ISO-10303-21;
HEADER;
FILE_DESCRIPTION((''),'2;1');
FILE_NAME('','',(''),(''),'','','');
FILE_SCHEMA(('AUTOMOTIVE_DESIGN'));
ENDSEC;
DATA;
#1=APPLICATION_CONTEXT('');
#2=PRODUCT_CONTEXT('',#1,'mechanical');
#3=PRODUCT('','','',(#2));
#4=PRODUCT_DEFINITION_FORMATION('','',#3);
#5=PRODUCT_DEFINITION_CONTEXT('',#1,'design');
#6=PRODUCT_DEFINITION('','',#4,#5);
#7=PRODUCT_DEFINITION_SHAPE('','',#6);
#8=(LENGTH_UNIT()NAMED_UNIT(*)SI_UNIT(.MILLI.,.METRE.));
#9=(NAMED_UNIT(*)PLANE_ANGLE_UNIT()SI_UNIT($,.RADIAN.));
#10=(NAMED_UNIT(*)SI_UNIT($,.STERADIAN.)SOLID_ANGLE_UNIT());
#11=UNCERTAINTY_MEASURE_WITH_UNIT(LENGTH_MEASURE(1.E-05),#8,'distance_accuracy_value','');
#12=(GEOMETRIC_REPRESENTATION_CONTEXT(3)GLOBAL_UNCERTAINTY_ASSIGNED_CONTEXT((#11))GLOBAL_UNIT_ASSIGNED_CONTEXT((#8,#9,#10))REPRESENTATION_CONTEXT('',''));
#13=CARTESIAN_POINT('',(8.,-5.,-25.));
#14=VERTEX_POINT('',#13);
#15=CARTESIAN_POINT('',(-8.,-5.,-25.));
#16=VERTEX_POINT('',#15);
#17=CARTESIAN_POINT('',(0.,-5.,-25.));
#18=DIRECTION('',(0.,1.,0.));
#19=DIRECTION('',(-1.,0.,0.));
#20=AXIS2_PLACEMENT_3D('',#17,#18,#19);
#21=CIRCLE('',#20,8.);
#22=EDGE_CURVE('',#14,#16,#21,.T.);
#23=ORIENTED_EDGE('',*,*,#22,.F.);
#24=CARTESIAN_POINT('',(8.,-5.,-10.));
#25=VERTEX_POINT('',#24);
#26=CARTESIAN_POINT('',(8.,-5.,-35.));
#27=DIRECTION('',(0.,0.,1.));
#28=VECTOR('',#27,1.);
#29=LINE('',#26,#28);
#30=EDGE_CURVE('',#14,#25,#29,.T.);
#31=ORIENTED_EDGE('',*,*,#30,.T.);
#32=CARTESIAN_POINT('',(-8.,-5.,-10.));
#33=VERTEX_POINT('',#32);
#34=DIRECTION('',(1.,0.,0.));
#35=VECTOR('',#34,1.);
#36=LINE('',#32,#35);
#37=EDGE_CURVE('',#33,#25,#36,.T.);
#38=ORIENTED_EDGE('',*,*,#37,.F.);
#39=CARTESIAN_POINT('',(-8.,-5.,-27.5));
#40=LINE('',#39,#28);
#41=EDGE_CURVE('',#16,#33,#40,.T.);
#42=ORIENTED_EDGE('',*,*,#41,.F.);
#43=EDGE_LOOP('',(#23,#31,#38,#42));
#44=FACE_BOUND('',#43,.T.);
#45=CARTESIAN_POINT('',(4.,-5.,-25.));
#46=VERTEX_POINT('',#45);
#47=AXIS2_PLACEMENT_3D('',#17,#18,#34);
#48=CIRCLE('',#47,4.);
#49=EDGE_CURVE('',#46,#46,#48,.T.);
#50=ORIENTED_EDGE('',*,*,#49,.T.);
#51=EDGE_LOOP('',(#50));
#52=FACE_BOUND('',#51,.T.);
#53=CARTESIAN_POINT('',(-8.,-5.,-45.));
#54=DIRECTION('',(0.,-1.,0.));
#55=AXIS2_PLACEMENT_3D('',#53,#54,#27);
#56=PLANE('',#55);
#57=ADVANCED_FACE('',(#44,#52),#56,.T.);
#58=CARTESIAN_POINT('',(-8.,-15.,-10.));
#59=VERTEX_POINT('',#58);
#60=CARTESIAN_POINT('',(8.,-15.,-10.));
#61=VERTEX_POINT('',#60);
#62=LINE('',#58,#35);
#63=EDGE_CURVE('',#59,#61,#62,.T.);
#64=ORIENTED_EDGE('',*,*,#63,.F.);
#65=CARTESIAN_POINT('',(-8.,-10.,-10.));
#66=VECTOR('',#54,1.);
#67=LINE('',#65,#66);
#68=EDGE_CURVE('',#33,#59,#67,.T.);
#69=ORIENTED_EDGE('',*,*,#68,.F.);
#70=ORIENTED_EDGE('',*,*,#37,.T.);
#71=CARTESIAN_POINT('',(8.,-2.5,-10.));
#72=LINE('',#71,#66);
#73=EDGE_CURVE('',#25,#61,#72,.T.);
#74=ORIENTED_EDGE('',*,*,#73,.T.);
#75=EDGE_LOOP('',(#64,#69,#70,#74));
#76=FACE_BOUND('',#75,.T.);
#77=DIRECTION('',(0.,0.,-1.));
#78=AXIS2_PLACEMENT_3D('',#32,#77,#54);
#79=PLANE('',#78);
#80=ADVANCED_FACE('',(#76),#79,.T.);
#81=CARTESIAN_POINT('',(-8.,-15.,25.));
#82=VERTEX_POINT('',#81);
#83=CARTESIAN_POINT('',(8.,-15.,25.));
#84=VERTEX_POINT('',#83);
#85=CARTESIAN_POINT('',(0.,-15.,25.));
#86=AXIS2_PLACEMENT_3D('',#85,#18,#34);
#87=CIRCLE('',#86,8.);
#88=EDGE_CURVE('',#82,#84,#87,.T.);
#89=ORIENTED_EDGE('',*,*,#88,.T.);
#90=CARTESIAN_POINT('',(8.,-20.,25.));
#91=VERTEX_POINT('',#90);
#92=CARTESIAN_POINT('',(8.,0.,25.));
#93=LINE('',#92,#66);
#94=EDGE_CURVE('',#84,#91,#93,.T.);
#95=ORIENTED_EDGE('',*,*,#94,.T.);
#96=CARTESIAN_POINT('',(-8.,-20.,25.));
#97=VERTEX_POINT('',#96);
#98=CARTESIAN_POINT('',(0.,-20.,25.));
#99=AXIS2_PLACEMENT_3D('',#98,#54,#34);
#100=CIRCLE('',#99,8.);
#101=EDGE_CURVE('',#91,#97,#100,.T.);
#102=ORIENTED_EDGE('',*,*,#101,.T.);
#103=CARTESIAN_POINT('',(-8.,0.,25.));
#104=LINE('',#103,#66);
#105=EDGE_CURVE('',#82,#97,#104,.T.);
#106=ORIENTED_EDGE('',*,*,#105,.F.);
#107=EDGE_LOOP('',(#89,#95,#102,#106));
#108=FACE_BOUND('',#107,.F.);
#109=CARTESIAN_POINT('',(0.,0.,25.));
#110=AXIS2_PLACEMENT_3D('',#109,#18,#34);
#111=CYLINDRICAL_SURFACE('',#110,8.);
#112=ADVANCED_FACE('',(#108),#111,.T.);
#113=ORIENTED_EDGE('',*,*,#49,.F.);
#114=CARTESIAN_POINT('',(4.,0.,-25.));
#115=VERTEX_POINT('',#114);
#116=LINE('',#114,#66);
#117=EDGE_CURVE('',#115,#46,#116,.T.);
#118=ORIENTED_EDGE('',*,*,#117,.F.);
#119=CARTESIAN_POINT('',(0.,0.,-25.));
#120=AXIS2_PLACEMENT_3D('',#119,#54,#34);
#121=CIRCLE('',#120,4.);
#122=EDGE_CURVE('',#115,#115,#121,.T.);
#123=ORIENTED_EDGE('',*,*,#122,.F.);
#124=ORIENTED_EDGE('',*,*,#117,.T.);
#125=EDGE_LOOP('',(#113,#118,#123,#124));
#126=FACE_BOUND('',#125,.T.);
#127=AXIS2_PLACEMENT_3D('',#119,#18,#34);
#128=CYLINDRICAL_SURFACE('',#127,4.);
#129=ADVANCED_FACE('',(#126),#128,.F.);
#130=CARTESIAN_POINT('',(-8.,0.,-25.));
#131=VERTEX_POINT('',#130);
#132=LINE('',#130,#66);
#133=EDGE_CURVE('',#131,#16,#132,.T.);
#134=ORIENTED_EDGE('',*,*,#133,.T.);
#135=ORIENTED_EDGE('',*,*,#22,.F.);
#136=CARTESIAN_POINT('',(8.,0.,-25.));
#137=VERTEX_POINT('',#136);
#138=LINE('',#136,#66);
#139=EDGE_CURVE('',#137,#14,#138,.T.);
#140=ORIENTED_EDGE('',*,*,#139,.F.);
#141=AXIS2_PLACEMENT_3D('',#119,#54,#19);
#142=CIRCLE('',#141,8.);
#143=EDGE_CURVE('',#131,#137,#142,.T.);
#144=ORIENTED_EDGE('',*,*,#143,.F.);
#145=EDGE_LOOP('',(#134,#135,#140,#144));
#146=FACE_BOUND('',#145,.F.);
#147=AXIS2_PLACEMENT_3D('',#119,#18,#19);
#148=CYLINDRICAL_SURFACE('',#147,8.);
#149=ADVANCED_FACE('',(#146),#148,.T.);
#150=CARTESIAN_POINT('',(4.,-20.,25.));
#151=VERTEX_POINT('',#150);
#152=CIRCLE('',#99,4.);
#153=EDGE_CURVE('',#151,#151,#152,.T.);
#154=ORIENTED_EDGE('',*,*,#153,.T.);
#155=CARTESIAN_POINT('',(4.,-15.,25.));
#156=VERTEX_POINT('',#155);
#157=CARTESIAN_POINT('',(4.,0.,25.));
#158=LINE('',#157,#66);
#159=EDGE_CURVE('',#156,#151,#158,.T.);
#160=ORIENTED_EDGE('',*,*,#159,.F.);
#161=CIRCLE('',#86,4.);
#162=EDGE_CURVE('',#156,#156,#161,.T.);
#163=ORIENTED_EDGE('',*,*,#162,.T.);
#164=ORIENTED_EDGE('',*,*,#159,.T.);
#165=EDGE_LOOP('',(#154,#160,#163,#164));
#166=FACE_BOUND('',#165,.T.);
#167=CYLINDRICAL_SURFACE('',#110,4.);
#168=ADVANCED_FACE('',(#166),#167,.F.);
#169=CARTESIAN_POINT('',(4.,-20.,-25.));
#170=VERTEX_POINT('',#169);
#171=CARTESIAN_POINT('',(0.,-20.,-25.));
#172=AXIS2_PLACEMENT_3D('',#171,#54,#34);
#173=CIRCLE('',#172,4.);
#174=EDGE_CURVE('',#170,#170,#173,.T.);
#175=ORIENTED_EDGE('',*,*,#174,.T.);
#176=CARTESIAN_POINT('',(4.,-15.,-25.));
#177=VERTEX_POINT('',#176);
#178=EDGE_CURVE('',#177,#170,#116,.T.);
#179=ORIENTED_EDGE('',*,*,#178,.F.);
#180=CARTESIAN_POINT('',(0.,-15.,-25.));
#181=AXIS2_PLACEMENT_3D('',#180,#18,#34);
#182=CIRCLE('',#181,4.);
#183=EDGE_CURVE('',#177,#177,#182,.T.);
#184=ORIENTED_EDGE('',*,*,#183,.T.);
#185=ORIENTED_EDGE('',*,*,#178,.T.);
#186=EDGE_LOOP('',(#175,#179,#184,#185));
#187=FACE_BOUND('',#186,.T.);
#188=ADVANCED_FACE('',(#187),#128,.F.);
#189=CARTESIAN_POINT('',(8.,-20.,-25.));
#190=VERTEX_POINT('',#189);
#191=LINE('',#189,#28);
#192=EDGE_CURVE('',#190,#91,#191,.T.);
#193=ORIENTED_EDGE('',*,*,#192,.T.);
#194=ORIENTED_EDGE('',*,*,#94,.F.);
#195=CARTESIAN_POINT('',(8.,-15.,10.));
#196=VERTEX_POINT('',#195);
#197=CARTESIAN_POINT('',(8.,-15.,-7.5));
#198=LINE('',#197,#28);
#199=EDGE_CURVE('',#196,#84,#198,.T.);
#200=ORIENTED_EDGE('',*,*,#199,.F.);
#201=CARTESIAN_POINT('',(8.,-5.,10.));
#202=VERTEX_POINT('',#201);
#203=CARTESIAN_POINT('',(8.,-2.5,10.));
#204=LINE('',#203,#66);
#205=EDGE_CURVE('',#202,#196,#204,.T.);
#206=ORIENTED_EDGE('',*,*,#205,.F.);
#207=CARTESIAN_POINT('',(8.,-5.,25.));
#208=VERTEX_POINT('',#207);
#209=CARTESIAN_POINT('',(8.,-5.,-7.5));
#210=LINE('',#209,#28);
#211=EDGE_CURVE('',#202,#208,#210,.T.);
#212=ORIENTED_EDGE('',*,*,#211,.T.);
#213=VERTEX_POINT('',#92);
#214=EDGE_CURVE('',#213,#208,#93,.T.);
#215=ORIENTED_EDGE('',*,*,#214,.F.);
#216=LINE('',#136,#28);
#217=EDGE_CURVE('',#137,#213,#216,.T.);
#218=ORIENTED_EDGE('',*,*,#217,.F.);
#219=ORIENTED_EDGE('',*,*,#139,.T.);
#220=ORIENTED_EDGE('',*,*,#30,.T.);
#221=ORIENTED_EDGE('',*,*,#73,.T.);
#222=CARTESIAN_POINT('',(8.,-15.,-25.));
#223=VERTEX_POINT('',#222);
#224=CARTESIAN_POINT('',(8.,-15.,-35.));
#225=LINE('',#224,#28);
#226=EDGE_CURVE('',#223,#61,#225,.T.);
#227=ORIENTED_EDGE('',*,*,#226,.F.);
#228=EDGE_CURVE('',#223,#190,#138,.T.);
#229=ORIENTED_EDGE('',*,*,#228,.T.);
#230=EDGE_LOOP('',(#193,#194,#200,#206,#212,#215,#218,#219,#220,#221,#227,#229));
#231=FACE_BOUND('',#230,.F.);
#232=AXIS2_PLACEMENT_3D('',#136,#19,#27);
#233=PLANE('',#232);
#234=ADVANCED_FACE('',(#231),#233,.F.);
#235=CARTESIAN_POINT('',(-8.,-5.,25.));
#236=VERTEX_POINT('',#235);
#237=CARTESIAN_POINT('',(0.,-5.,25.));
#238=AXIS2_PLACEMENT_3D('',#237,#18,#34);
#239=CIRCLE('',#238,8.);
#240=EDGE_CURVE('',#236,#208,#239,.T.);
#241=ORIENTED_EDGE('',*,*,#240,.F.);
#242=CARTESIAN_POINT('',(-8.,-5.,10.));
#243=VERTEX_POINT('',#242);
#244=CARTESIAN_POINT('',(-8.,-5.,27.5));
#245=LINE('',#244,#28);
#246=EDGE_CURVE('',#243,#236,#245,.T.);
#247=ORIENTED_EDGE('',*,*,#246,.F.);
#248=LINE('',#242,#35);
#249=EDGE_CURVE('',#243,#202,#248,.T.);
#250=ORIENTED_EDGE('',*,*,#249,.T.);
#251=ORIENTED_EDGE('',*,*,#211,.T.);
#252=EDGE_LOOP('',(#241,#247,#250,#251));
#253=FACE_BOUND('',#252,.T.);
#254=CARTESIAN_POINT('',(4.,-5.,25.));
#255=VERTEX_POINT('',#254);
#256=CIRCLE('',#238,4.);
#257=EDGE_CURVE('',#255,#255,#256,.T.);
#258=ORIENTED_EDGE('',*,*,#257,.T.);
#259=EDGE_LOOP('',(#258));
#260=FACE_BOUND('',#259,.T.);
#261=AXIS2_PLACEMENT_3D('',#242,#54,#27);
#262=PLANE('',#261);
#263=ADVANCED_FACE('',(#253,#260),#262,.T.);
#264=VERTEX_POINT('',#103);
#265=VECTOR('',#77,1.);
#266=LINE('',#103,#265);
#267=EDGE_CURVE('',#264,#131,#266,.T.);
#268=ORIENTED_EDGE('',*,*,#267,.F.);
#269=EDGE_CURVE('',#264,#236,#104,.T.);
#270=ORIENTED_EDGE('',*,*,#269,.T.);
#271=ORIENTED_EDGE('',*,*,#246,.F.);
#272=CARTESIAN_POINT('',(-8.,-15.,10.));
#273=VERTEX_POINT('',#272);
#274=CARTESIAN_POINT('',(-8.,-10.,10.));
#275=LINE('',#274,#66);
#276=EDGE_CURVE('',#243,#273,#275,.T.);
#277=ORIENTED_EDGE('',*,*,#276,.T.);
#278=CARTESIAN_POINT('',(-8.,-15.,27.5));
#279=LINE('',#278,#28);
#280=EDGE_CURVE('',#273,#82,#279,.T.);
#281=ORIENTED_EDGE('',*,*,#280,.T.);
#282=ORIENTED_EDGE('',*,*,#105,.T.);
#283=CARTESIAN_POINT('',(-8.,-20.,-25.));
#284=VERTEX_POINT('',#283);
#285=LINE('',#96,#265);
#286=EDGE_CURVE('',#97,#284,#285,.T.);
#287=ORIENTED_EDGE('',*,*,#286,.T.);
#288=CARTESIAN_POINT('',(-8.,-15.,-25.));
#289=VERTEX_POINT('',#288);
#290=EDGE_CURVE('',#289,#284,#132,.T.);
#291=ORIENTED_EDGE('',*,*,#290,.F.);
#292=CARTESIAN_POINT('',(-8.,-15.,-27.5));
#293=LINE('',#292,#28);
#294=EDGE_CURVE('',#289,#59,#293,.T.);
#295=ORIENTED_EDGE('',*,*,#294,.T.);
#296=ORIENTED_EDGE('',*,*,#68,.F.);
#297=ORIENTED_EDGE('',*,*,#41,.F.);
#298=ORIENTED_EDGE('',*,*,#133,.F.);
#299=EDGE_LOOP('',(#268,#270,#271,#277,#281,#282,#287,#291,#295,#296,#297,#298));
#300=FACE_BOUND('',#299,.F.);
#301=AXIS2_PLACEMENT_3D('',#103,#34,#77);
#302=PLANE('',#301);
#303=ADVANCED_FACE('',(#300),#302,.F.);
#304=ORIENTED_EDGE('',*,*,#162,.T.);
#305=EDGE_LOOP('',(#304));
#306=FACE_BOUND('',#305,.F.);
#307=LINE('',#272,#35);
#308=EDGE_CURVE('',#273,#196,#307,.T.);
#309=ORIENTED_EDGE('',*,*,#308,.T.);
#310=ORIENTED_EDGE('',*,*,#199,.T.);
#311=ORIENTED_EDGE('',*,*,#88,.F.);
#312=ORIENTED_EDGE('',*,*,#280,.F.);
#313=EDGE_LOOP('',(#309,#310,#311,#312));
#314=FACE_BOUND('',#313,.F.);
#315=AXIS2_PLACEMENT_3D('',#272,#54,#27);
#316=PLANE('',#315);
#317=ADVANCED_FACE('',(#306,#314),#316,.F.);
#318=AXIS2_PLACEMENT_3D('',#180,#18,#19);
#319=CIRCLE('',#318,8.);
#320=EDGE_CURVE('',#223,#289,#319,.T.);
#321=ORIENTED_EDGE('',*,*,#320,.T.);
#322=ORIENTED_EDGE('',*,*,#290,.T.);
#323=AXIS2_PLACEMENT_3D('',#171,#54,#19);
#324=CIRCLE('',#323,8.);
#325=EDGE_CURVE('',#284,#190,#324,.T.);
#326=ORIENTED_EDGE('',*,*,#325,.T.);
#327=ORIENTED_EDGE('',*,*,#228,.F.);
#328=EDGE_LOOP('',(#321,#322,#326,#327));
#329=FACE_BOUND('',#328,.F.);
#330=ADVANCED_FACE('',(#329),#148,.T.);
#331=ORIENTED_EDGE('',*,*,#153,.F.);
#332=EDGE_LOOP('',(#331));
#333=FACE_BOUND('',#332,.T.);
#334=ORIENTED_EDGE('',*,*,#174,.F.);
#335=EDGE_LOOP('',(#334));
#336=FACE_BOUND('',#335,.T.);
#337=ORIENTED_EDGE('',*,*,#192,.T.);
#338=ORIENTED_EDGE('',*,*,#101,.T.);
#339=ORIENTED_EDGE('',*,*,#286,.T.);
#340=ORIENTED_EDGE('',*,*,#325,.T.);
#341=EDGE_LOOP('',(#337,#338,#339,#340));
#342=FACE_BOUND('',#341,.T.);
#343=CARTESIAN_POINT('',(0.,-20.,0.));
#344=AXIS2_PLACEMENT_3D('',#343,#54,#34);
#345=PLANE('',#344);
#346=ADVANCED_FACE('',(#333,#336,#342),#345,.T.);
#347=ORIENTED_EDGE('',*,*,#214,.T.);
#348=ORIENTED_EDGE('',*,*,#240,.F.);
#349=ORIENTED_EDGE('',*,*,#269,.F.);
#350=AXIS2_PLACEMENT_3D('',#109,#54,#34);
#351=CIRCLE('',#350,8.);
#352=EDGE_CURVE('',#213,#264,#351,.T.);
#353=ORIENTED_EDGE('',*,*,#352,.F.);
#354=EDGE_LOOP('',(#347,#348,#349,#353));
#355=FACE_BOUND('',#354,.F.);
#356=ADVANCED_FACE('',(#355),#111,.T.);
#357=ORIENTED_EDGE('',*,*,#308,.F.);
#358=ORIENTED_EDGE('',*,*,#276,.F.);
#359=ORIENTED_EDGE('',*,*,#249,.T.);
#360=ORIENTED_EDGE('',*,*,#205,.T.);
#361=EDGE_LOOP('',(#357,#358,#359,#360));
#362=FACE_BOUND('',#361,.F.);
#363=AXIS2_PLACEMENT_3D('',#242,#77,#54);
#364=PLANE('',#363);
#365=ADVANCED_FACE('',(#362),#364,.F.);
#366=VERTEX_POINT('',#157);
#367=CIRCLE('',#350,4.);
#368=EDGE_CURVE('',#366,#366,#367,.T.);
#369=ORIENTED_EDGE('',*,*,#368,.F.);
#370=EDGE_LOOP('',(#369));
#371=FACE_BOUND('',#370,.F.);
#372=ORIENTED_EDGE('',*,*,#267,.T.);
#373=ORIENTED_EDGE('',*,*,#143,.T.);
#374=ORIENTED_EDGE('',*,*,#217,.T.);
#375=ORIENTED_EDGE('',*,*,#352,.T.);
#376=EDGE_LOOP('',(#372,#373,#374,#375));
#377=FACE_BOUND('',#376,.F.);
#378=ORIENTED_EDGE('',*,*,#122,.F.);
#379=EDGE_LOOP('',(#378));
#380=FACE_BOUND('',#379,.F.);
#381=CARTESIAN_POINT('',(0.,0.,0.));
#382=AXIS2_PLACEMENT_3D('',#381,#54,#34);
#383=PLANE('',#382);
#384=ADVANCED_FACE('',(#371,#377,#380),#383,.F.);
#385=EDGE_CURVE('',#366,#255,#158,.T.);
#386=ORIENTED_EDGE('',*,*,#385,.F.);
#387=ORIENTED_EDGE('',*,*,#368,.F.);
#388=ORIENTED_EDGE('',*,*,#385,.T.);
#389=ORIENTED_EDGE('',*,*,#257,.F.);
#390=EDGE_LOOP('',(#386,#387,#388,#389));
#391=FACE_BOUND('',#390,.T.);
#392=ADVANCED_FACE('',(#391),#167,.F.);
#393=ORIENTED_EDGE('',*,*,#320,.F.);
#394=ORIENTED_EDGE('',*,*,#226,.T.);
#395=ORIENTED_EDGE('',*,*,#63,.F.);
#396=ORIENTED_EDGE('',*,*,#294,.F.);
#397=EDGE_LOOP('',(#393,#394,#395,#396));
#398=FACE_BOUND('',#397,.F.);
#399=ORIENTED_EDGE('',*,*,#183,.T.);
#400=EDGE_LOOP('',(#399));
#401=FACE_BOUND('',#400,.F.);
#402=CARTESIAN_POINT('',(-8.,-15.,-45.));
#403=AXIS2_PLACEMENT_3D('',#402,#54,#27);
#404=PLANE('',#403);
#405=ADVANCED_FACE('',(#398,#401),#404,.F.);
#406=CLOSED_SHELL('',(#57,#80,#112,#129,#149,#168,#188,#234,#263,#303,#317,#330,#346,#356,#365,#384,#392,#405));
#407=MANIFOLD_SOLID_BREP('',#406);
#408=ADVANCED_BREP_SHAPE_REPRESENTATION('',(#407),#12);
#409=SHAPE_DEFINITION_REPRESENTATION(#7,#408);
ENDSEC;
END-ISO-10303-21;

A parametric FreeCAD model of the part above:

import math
import FreeCAD as App
import Part
import Sketcher
Q = App.Units.Quantity


def add_polygon(sketch, points):
    """Adds a closed chain of lines whose ends are joined by coincident constraints."""
    first, n = sketch.GeometryCount, len(points)
    for a, b in zip(points, points[1:] + points[:1]):
        sketch.addGeometry(Part.LineSegment(App.Vector(*a, 0), App.Vector(*b, 0)), False)
    for i in range(n):
        sketch.addConstraint(Sketcher.Constraint("Coincident", first + i, 2, first + (i + 1) % n, 1))

doc = App.newDocument("Part")
body = doc.addObject("PartDesign::Body", "Body")

# Sketch on XZ plane
sketch1 = body.newObject("Sketcher::SketchObject", "Sketch")
sketch1.AttachmentSupport = (doc.getObject("XZ_Plane"), [""])
sketch1.MapMode = "FlatFace"
sketch1.addGeometry(Part.LineSegment(App.Vector(8, -25, 0), App.Vector(8, 25, 0)), False)
sketch1.addGeometry(Part.ArcOfCircle(Part.Circle(App.Vector(0, 25, 0), App.Vector(0, 0, 1), 8), math.radians(0), math.radians(180)), False)
sketch1.addGeometry(Part.LineSegment(App.Vector(-8, 25, 0), App.Vector(-8, -25, 0)), False)
sketch1.addGeometry(Part.ArcOfCircle(Part.Circle(App.Vector(0, -25, 0), App.Vector(0, 0, 1), 8), math.radians(180), math.radians(360)), False)
sketch1.addGeometry(Part.Circle(App.Vector(0, -25, 0), App.Vector(0, 0, 1), 4), False)
sketch1.addGeometry(Part.Circle(App.Vector(0, 25, 0), App.Vector(0, 0, 1), 4), False)
sketch1.addConstraint(Sketcher.Constraint("Tangent", 0, 2, 1, 1))
sketch1.addConstraint(Sketcher.Constraint("Tangent", 1, 2, 2, 1))
sketch1.addConstraint(Sketcher.Constraint("Tangent", 2, 2, 3, 1))
sketch1.addConstraint(Sketcher.Constraint("Tangent", 3, 2, 0, 1))
sketch1.addConstraint(Sketcher.Constraint("Vertical", 0))
sketch1.addConstraint(Sketcher.Constraint("Vertical", 2))
sketch1.addConstraint(Sketcher.Constraint("Coincident", 4, 3, 3, 3))
sketch1.addConstraint(Sketcher.Constraint("Coincident", 5, 3, 1, 3))
sketch1.addConstraint(Sketcher.Constraint("Equal", 4, 5))
sketch1.addConstraint(Sketcher.Constraint("Symmetric", 1, 3, 3, 3, -1, 1))
sketch1.addConstraint(Sketcher.Constraint("Diameter", 4, Q("8 mm")))
sketch1.addConstraint(Sketcher.Constraint("Radius", 1, Q("8 mm")))
sketch1.addConstraint(Sketcher.Constraint("DistanceY", 0, 1, 0, 2, Q("50 mm")))
pad1 = body.newObject("PartDesign::Pad", "Pad")
pad1.Profile = sketch1
pad1.Length = 20

# Sketch on YZ plane
sketch2 = body.newObject("Sketcher::SketchObject", "Sketch001")
sketch2.AttachmentSupport = (doc.getObject("YZ_Plane"), [""])
sketch2.MapMode = "FlatFace"
sketch2.AttachmentOffset = App.Placement(App.Vector(0, 0, -8), App.Rotation())
add_polygon(sketch2, [(-5, 45), (-5, 10), (-15, 10), (-15, 45)])  # lines 0-3
add_polygon(sketch2, [(-5, -10), (-5, -45), (-15, -45), (-15, -10)])  # lines 4-7
sketch2.addConstraint(Sketcher.Constraint("Vertical", 0))
sketch2.addConstraint(Sketcher.Constraint("Horizontal", 1))
sketch2.addConstraint(Sketcher.Constraint("Vertical", 2))
sketch2.addConstraint(Sketcher.Constraint("Horizontal", 3))
sketch2.addConstraint(Sketcher.Constraint("Vertical", 4))
sketch2.addConstraint(Sketcher.Constraint("Horizontal", 5))
sketch2.addConstraint(Sketcher.Constraint("Vertical", 6))
sketch2.addConstraint(Sketcher.Constraint("Horizontal", 7))
sketch2.addConstraint(Sketcher.Constraint("Symmetric", 3, 2, 4, 2, -1))
sketch2.addConstraint(Sketcher.Constraint("Symmetric", 1, 2, 6, 2, -1))
sketch2.addConstraint(Sketcher.Constraint("DistanceX", 1, 2, 1, 1, Q("10 mm")))
sketch2.addConstraint(Sketcher.Constraint("DistanceY", 0, 2, 0, 1, Q("35 mm")))
sketch2.addConstraint(Sketcher.Constraint("DistanceX", 0, 2, -1, 1, Q("5 mm")))
sketch2.addConstraint(Sketcher.Constraint("DistanceY", -1, 1, 0, 2, Q("10 mm")))
pocket1 = body.newObject("PartDesign::Pocket", "Pocket")
pocket1.Profile = sketch2
pocket1.Type = "ThroughAll"
pocket1.Reversed = True

doc.recompute()
